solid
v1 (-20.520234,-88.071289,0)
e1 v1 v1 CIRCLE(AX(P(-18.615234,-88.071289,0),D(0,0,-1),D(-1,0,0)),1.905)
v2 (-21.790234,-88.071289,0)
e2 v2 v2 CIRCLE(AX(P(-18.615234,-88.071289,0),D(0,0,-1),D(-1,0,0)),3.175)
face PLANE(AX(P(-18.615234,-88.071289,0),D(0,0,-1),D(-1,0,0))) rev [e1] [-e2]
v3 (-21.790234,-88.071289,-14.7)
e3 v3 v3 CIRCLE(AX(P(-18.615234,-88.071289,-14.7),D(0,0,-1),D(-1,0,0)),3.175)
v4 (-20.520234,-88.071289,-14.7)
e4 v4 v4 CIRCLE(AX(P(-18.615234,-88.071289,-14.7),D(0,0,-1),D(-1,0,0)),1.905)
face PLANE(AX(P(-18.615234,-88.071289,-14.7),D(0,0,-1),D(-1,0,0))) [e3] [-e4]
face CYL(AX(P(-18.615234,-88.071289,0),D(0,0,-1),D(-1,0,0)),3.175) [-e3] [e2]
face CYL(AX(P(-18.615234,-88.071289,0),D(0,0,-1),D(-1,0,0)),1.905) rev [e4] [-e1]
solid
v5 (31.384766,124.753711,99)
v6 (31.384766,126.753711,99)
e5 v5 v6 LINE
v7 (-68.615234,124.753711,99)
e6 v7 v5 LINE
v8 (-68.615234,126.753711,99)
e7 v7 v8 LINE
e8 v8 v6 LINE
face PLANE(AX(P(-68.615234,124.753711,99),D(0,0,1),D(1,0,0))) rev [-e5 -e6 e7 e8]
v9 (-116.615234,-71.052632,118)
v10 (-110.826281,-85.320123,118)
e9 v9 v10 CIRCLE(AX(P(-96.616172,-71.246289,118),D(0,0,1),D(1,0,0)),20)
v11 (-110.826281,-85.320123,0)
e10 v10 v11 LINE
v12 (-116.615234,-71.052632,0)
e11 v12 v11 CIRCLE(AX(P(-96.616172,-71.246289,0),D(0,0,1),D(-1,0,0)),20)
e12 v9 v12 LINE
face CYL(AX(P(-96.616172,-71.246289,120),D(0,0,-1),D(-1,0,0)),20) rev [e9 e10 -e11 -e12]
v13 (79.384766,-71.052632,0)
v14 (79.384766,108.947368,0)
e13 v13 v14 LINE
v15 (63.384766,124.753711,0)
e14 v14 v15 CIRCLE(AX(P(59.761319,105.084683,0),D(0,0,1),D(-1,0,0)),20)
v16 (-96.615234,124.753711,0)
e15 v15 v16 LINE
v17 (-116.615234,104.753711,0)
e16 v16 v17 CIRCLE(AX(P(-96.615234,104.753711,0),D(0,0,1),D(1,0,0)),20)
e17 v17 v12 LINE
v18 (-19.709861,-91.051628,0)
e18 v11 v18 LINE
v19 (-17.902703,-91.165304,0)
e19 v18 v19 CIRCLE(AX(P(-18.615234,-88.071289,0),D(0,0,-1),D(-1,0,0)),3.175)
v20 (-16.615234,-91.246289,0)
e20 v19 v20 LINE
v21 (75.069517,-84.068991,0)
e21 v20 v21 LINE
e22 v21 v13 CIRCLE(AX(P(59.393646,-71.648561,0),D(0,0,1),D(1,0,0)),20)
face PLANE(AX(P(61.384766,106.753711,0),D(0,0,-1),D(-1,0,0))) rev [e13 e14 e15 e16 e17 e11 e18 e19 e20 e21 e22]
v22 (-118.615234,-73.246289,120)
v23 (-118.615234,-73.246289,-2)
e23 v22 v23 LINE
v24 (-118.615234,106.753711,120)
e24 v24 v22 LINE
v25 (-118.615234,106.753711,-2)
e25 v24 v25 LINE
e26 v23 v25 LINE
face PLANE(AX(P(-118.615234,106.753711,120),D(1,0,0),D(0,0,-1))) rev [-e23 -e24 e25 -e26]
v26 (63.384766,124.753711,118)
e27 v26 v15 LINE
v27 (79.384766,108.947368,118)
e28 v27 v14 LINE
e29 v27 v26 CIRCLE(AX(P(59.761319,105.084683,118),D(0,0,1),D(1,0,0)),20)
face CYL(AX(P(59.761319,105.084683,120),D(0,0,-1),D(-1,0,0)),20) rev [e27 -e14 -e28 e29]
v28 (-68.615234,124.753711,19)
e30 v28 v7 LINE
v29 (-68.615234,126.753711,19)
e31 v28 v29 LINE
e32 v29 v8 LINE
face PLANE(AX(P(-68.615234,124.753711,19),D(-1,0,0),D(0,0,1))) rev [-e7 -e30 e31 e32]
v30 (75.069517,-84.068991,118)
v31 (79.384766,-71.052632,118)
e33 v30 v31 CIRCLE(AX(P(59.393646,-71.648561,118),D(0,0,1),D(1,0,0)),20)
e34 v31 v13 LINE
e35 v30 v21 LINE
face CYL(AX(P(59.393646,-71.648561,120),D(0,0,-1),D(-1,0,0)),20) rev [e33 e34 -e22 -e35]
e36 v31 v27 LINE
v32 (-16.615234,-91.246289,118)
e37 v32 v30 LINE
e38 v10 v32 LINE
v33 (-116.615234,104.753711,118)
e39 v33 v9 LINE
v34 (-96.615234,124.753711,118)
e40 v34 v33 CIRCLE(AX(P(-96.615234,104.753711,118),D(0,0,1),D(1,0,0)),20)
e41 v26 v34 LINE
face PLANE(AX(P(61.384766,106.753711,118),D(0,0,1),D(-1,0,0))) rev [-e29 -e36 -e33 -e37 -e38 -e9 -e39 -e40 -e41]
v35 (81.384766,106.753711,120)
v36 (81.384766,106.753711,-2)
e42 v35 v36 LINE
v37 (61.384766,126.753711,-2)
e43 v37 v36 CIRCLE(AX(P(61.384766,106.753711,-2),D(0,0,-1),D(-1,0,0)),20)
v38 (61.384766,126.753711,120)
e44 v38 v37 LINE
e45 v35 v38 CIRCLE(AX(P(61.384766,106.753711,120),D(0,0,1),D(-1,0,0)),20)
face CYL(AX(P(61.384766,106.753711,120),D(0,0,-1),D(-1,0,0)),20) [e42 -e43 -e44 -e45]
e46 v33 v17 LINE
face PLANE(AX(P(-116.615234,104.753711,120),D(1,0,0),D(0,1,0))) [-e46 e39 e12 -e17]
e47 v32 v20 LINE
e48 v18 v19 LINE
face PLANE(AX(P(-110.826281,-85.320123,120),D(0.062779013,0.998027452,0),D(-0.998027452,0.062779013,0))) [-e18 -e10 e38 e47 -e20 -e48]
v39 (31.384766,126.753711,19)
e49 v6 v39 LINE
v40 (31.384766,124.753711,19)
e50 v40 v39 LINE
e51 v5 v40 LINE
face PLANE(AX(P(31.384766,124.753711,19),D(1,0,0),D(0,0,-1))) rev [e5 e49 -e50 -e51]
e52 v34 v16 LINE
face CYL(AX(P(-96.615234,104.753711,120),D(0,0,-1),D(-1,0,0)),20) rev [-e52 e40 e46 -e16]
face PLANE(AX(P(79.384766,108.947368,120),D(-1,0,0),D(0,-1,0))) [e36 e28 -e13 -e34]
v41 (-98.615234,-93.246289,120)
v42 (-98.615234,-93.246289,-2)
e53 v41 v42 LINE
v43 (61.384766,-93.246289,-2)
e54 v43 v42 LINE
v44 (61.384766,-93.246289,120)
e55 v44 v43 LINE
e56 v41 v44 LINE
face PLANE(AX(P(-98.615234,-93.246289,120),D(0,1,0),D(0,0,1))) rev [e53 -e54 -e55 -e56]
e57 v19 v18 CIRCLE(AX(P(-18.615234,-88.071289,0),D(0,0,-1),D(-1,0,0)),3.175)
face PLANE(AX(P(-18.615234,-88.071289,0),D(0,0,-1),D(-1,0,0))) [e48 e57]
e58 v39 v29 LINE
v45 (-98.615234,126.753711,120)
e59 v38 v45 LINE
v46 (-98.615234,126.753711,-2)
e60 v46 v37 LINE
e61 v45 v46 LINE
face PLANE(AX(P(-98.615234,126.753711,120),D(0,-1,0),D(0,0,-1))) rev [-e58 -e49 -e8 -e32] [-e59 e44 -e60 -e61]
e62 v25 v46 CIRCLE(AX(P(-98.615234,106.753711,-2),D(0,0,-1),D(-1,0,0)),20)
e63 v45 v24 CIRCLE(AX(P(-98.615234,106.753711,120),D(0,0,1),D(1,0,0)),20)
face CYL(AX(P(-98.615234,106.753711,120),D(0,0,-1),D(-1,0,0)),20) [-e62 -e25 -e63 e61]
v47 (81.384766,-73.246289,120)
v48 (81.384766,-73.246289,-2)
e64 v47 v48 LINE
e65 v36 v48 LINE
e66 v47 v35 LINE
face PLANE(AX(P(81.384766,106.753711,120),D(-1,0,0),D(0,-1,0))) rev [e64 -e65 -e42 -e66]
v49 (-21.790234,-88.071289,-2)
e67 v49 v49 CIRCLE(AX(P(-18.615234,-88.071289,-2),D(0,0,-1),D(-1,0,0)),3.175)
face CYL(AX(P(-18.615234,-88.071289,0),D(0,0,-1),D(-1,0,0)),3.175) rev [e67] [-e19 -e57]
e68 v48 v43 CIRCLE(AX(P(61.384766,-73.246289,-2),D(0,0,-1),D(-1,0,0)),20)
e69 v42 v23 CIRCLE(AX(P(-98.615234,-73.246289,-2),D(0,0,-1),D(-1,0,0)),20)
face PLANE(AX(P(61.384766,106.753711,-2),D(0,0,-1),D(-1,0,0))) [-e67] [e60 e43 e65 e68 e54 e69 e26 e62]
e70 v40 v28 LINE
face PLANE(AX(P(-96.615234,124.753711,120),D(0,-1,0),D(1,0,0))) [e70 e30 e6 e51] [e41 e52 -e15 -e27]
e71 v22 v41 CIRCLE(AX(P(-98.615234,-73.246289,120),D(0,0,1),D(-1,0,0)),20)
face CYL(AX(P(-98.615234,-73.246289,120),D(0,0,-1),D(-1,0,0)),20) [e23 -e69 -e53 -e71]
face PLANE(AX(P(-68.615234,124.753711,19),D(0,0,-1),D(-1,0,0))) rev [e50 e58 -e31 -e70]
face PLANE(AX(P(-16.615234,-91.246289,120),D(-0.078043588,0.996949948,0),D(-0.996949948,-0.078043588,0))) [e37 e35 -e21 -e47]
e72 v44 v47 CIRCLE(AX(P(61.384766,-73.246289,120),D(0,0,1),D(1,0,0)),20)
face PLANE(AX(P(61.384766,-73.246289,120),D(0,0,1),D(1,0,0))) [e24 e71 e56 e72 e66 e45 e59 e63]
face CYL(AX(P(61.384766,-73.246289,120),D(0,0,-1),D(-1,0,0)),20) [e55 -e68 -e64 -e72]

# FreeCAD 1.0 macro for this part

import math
import FreeCAD as App
import Part
import Sketcher

V = App.Vector


def add_polygon(sketch, points):
    """Adds a closed chain of lines whose ends are joined by coincident constraints."""
    first, n = sketch.GeometryCount, len(points)
    for a, b in zip(points, points[1:] + points[:1]):
        sketch.addGeometry(Part.LineSegment(App.Vector(*a, 0), App.Vector(*b, 0)), False)
    for i in range(n):
        sketch.addConstraint(Sketcher.Constraint("Coincident", first + i, 2, first + (i + 1) % n, 1))

doc = App.newDocument("Part")
body = doc.addObject("PartDesign::Body", "Body")

# Sketch on XY plane
sketch1 = doc.addObject("Sketcher::SketchObject", "Sketch")
body.addObject(sketch1)
sketch1.AttachmentSupport = (doc.XY_Plane, [""])
sketch1.MapMode = "FlatFace"
sketch1.addGeometry(Part.LineSegment(V(61, 127, 0), V(-99, 127, 0)), False)
sketch1.addGeometry(Part.ArcOfCircle(Part.Circle(V(-99, 107, 0), V(0, 0, 1), 20), math.radians(90), math.radians(180)), False)
sketch1.addGeometry(Part.LineSegment(V(-119, 107, 0), V(-119, -73, 0)), False)
sketch1.addGeometry(Part.ArcOfCircle(Part.Circle(V(-99, -73, 0), V(0, 0, 1), 20), math.radians(180), math.radians(270)), False)
sketch1.addGeometry(Part.LineSegment(V(-99, -93, 0), V(61, -93, 0)), False)
sketch1.addGeometry(Part.ArcOfCircle(Part.Circle(V(61, -73, 0), V(0, 0, 1), 20), math.radians(-90), math.radians(0)), False)
sketch1.addGeometry(Part.LineSegment(V(81, -73, 0), V(81, 107, 0)), False)
sketch1.addGeometry(Part.ArcOfCircle(Part.Circle(V(61, 107, 0), V(0, 0, 1), 20), math.radians(0), math.radians(90)), False)
sketch1.addGeometry(Part.LineSegment(V(-97, 125, 0), V(63, 125, 0)), False)
sketch1.addGeometry(Part.ArcOfCircle(Part.Circle(V(60, 105, 0), V(0, 0, 1), 20), math.radians(11), math.radians(80)), False)
sketch1.addGeometry(Part.LineSegment(V(79, 109, 0), V(79, -71, 0)), False)
sketch1.addGeometry(Part.ArcOfCircle(Part.Circle(V(59, -72, 0), V(0, 0, 1), 20), math.radians(-38), math.radians(2)), False)
sketch1.addGeometry(Part.LineSegment(V(75, -84, 0), V(-17, -91, 0)), False)
sketch1.addGeometry(Part.LineSegment(V(-17, -91, 0), V(-111, -85, 0)), False)
sketch1.addGeometry(Part.ArcOfCircle(Part.Circle(V(-97, -71, 0), V(0, 0, 1), 20), math.radians(179), math.radians(225)), False)
sketch1.addGeometry(Part.LineSegment(V(-117, -71, 0), V(-117, 105, 0)), False)
sketch1.addGeometry(Part.ArcOfCircle(Part.Circle(V(-97, 105, 0), V(0, 0, 1), 20), math.radians(90), math.radians(180)), False)
sketch1.addConstraint(Sketcher.Constraint("Tangent", 0, 2, 1, 1))
sketch1.addConstraint(Sketcher.Constraint("Tangent", 1, 2, 2, 1))
sketch1.addConstraint(Sketcher.Constraint("Tangent", 2, 2, 3, 1))
sketch1.addConstraint(Sketcher.Constraint("Tangent", 3, 2, 4, 1))
sketch1.addConstraint(Sketcher.Constraint("Tangent", 4, 2, 5, 1))
sketch1.addConstraint(Sketcher.Constraint("Tangent", 5, 2, 6, 1))
sketch1.addConstraint(Sketcher.Constraint("Tangent", 6, 2, 7, 1))
sketch1.addConstraint(Sketcher.Constraint("Tangent", 7, 2, 0, 1))
sketch1.addConstraint(Sketcher.Constraint("Coincident", 8, 2, 9, 2))
sketch1.addConstraint(Sketcher.Constraint("Coincident", 9, 1, 10, 1))
sketch1.addConstraint(Sketcher.Constraint("Coincident", 10, 2, 11, 2))
sketch1.addConstraint(Sketcher.Constraint("Coincident", 11, 1, 12, 1))
sketch1.addConstraint(Sketcher.Constraint("Coincident", 12, 2, 13, 1))
sketch1.addConstraint(Sketcher.Constraint("Coincident", 13, 2, 14, 2))
sketch1.addConstraint(Sketcher.Constraint("Coincident", 14, 1, 15, 1))
sketch1.addConstraint(Sketcher.Constraint("Tangent", 15, 2, 16, 2))
sketch1.addConstraint(Sketcher.Constraint("Tangent", 16, 1, 8, 1))
sketch1.addConstraint(Sketcher.Constraint("Horizontal", 0))
sketch1.addConstraint(Sketcher.Constraint("Vertical", 2))
sketch1.addConstraint(Sketcher.Constraint("Horizontal", 4))
sketch1.addConstraint(Sketcher.Constraint("Vertical", 6))
sketch1.addConstraint(Sketcher.Constraint("Horizontal", 8))
sketch1.addConstraint(Sketcher.Constraint("Vertical", 10))
sketch1.addConstraint(Sketcher.Constraint("Vertical", 15))
sketch1.addConstraint(Sketcher.Constraint("Equal", 1, 3))
sketch1.addConstraint(Sketcher.Constraint("Equal", 3, 5))
sketch1.addConstraint(Sketcher.Constraint("Equal", 5, 7))
sketch1.addConstraint(Sketcher.Constraint("Equal", 7, 9))
sketch1.addConstraint(Sketcher.Constraint("Equal", 9, 11))
sketch1.addConstraint(Sketcher.Constraint("Equal", 11, 14))
sketch1.addConstraint(Sketcher.Constraint("Equal", 14, 16))
sketch1.addConstraint(Sketcher.Constraint("Horizontal", 10, 2, 14, 1))
sketch1.addConstraint(Sketcher.Constraint("Equal", 4, 8))
sketch1.addConstraint(Sketcher.Constraint("Equal", 6, 10))
sketch1.addConstraint(Sketcher.Constraint("Radius", 1, 20.0))
sketch1.addConstraint(Sketcher.Constraint("DistanceX", 0, 2, 0, 1, 160.0))
sketch1.addConstraint(Sketcher.Constraint("DistanceY", 2, 2, 2, 1, 180.0))
sketch1.addConstraint(Sketcher.Constraint("DistanceY", 3, 3, 14, 3, 2.0))
sketch1.addConstraint(Sketcher.Constraint("DistanceX", 1, 3, 16, 3, 2.0))
sketch1.addConstraint(Sketcher.Constraint("DistanceY", 16, 3, 1, 3, 2.0))
sketch1.addConstraint(Sketcher.Constraint("DistanceX", 9, 1, 6, 2, 2.0))
sketch1.addConstraint(Sketcher.Constraint("DistanceX", 12, 2, 4, 2, 78.0))
sketch1.addConstraint(Sketcher.Constraint("DistanceY", 4, 2, 12, 2, 2.0))
sketch1.addConstraint(Sketcher.Constraint("DistanceY", 11, 1, 5, 2, 10.822702))
sketch1.addConstraint(Sketcher.Constraint("Distance", 12, 91.965249))
sketch1.addConstraint(Sketcher.Constraint("Distance", 13, 94.39725))
sketch1.addConstraint(Sketcher.Constraint("DistanceY", 15, 1, 15, 2, 175.806342))
sketch1.addConstraint(Sketcher.Constraint("DistanceY", -1, 1, 1, 3, 106.753711))
sketch1.addConstraint(Sketcher.Constraint("DistanceX", -1, 1, 9, 3, 59.761319))
pad1 = doc.addObject("PartDesign::Pad", "Pad")
body.addObject(pad1)
pad1.Profile = sketch1
pad1.Length = 120

# Sketch on XY plane
sketch2 = doc.addObject("Sketcher::SketchObject", "Sketch001")
body.addObject(sketch2)
sketch2.AttachmentSupport = (doc.XY_Plane, [""])
sketch2.MapMode = "FlatFace"
sketch2.addGeometry(Part.LineSegment(V(81, 107, 0), V(81, -73, 0)), False)
sketch2.addGeometry(Part.ArcOfCircle(Part.Circle(V(61, -73, 0), V(0, 0, 1), 20), math.radians(-90), math.radians(0)), False)
sketch2.addGeometry(Part.LineSegment(V(61, -93, 0), V(-99, -93, 0)), False)
sketch2.addGeometry(Part.ArcOfCircle(Part.Circle(V(-99, -73, 0), V(0, 0, 1), 20), math.radians(180), math.radians(270)), False)
sketch2.addGeometry(Part.LineSegment(V(-119, -73, 0), V(-119, 107, 0)), False)
sketch2.addGeometry(Part.ArcOfCircle(Part.Circle(V(-99, 107, 0), V(0, 0, 1), 20), math.radians(90), math.radians(180)), False)
sketch2.addGeometry(Part.LineSegment(V(-99, 127, 0), V(61, 127, 0)), False)
sketch2.addGeometry(Part.ArcOfCircle(Part.Circle(V(61, 107, 0), V(0, 0, 1), 20), math.radians(0), math.radians(90)), False)
sketch2.addConstraint(Sketcher.Constraint("Tangent", 0, 2, 1, 2))
sketch2.addConstraint(Sketcher.Constraint("Tangent", 1, 1, 2, 1))
sketch2.addConstraint(Sketcher.Constraint("Tangent", 2, 2, 3, 2))
sketch2.addConstraint(Sketcher.Constraint("Tangent", 3, 1, 4, 1))
sketch2.addConstraint(Sketcher.Constraint("Tangent", 4, 2, 5, 2))
sketch2.addConstraint(Sketcher.Constraint("Tangent", 5, 1, 6, 1))
sketch2.addConstraint(Sketcher.Constraint("Tangent", 6, 2, 7, 2))
sketch2.addConstraint(Sketcher.Constraint("Tangent", 7, 1, 0, 1))
sketch2.addConstraint(Sketcher.Constraint("Vertical", 0))
sketch2.addConstraint(Sketcher.Constraint("Horizontal", 2))
sketch2.addConstraint(Sketcher.Constraint("Vertical", 4))
sketch2.addConstraint(Sketcher.Constraint("Horizontal", 6))
sketch2.addConstraint(Sketcher.Constraint("Equal", 1, 3))
sketch2.addConstraint(Sketcher.Constraint("Equal", 3, 5))
sketch2.addConstraint(Sketcher.Constraint("Equal", 5, 7))
sketch2.addConstraint(Sketcher.Constraint("Radius", 1, 20.0))
sketch2.addConstraint(Sketcher.Constraint("DistanceX", 2, 2, 2, 1, 160.0))
sketch2.addConstraint(Sketcher.Constraint("DistanceY", 0, 2, 0, 1, 180.0))
sketch2.addConstraint(Sketcher.Constraint("DistanceY", 1, 3, -1, 1, 73.246289))
sketch2.addConstraint(Sketcher.Constraint("DistanceX", -1, 1, 1, 3, 61.384766))
pad2 = doc.addObject("PartDesign::Pad", "Pad001")
body.addObject(pad2)
pad2.Profile = sketch2
pad2.Length = 2
pad2.Reversed = True
doc.recompute()

datumplane = doc.addObject("PartDesign::Plane", "DatumPlane")
body.addObject(datumplane)
datumplane.AttachmentSupport = (doc.XY_Plane, [""])
datumplane.MapMode = "FlatFace"
datumplane.AttachmentOffset = App.Placement(V(0, 0, 59), App.Rotation())
mirrored = doc.addObject("PartDesign::Mirrored", "Mirrored")
body.addObject(mirrored)
mirrored.Originals = [pad2]
mirrored.MirrorPlane = (datumplane, [""])
body.Tip = mirrored

# Sketch on XY plane
sketch3 = doc.addObject("Sketcher::SketchObject", "Sketch002")
body.addObject(sketch3)
sketch3.AttachmentSupport = (doc.XY_Plane, [""])
sketch3.MapMode = "FlatFace"
sketch3.AttachmentOffset = App.Placement(V(0, 0, -2), App.Rotation())
sketch3.addGeometry(Part.Circle(V(-18.6, -88.1, 0), V(0, 0, 1), 3.2), False)
sketch3.addConstraint(Sketcher.Constraint("Diameter", 0, 6.35))
sketch3.addConstraint(Sketcher.Constraint("DistanceY", 0, 3, -1, 1, 88.071289))
sketch3.addConstraint(Sketcher.Constraint("DistanceX", 0, 3, -1, 1, 18.615234))
pocket1 = doc.addObject("PartDesign::Pocket", "Pocket")
body.addObject(pocket1)
pocket1.Profile = sketch3
pocket1.Length = 2
pocket1.Reversed = True

# Sketch on XZ plane
sketch4 = doc.addObject("Sketcher::SketchObject", "Sketch003")
body.addObject(sketch4)
sketch4.AttachmentSupport = (doc.XZ_Plane, [""])
sketch4.MapMode = "FlatFace"
sketch4.AttachmentOffset = App.Placement(V(0, 0, -126.753711), App.Rotation())
add_polygon(sketch4, [(-69, 19), (-69, 99), (31, 99), (31, 19)])  # lines 0-3
sketch4.addConstraint(Sketcher.Constraint("Vertical", 0))
sketch4.addConstraint(Sketcher.Constraint("Horizontal", 1))
sketch4.addConstraint(Sketcher.Constraint("Vertical", 2))
sketch4.addConstraint(Sketcher.Constraint("Horizontal", 3))
sketch4.addConstraint(Sketcher.Constraint("DistanceX", 1, 1, 1, 2, 100.0))
sketch4.addConstraint(Sketcher.Constraint("DistanceY", 0, 1, 0, 2, 80.0))
sketch4.addConstraint(Sketcher.Constraint("DistanceY", -1, 1, 0, 2, 99.0))
sketch4.addConstraint(Sketcher.Constraint("DistanceX", 0, 2, -1, 1, 68.615234))
pocket2 = doc.addObject("PartDesign::Pocket", "Pocket001")
body.addObject(pocket2)
pocket2.Profile = sketch4
pocket2.Length = 2
pocket2.Reversed = True
body2 = doc.addObject("PartDesign::Body", "Body001")

# Sketch on XY plane
sketch5 = doc.addObject("Sketcher::SketchObject", "Sketch004")
body2.addObject(sketch5)
sketch5.AttachmentSupport = (doc.getObject("XY_Plane001"), [""])
sketch5.MapMode = "FlatFace"
sketch5.AttachmentOffset = App.Placement(V(0, 0, -2), App.Rotation())
sketch5.addGeometry(Part.Circle(V(-18.6, -88.1, 0), V(0, 0, 1), 3.2), False)
sketch5.addGeometry(Part.Circle(V(-18.6, -88.1, 0), V(0, 0, 1), 1.9), False)
sketch5.addConstraint(Sketcher.Constraint("Coincident", 1, 3, 0, 3))
sketch5.addConstraint(Sketcher.Constraint("Diameter", 0, 6.35))
sketch5.addConstraint(Sketcher.Constraint("Diameter", 1, 3.81))
sketch5.addConstraint(Sketcher.Constraint("DistanceY", 0, 3, -1, 1, 88.071289))
sketch5.addConstraint(Sketcher.Constraint("DistanceX", 0, 3, -1, 1, 18.615234))
pad3 = doc.addObject("PartDesign::Pad", "Pad002")
body2.addObject(pad3)
pad3.Profile = sketch5
pad3.Type = "TwoLengths"
pad3.Length = 12.7
pad3.Length2 = 2
pad3.Reversed = True

doc.recompute()
